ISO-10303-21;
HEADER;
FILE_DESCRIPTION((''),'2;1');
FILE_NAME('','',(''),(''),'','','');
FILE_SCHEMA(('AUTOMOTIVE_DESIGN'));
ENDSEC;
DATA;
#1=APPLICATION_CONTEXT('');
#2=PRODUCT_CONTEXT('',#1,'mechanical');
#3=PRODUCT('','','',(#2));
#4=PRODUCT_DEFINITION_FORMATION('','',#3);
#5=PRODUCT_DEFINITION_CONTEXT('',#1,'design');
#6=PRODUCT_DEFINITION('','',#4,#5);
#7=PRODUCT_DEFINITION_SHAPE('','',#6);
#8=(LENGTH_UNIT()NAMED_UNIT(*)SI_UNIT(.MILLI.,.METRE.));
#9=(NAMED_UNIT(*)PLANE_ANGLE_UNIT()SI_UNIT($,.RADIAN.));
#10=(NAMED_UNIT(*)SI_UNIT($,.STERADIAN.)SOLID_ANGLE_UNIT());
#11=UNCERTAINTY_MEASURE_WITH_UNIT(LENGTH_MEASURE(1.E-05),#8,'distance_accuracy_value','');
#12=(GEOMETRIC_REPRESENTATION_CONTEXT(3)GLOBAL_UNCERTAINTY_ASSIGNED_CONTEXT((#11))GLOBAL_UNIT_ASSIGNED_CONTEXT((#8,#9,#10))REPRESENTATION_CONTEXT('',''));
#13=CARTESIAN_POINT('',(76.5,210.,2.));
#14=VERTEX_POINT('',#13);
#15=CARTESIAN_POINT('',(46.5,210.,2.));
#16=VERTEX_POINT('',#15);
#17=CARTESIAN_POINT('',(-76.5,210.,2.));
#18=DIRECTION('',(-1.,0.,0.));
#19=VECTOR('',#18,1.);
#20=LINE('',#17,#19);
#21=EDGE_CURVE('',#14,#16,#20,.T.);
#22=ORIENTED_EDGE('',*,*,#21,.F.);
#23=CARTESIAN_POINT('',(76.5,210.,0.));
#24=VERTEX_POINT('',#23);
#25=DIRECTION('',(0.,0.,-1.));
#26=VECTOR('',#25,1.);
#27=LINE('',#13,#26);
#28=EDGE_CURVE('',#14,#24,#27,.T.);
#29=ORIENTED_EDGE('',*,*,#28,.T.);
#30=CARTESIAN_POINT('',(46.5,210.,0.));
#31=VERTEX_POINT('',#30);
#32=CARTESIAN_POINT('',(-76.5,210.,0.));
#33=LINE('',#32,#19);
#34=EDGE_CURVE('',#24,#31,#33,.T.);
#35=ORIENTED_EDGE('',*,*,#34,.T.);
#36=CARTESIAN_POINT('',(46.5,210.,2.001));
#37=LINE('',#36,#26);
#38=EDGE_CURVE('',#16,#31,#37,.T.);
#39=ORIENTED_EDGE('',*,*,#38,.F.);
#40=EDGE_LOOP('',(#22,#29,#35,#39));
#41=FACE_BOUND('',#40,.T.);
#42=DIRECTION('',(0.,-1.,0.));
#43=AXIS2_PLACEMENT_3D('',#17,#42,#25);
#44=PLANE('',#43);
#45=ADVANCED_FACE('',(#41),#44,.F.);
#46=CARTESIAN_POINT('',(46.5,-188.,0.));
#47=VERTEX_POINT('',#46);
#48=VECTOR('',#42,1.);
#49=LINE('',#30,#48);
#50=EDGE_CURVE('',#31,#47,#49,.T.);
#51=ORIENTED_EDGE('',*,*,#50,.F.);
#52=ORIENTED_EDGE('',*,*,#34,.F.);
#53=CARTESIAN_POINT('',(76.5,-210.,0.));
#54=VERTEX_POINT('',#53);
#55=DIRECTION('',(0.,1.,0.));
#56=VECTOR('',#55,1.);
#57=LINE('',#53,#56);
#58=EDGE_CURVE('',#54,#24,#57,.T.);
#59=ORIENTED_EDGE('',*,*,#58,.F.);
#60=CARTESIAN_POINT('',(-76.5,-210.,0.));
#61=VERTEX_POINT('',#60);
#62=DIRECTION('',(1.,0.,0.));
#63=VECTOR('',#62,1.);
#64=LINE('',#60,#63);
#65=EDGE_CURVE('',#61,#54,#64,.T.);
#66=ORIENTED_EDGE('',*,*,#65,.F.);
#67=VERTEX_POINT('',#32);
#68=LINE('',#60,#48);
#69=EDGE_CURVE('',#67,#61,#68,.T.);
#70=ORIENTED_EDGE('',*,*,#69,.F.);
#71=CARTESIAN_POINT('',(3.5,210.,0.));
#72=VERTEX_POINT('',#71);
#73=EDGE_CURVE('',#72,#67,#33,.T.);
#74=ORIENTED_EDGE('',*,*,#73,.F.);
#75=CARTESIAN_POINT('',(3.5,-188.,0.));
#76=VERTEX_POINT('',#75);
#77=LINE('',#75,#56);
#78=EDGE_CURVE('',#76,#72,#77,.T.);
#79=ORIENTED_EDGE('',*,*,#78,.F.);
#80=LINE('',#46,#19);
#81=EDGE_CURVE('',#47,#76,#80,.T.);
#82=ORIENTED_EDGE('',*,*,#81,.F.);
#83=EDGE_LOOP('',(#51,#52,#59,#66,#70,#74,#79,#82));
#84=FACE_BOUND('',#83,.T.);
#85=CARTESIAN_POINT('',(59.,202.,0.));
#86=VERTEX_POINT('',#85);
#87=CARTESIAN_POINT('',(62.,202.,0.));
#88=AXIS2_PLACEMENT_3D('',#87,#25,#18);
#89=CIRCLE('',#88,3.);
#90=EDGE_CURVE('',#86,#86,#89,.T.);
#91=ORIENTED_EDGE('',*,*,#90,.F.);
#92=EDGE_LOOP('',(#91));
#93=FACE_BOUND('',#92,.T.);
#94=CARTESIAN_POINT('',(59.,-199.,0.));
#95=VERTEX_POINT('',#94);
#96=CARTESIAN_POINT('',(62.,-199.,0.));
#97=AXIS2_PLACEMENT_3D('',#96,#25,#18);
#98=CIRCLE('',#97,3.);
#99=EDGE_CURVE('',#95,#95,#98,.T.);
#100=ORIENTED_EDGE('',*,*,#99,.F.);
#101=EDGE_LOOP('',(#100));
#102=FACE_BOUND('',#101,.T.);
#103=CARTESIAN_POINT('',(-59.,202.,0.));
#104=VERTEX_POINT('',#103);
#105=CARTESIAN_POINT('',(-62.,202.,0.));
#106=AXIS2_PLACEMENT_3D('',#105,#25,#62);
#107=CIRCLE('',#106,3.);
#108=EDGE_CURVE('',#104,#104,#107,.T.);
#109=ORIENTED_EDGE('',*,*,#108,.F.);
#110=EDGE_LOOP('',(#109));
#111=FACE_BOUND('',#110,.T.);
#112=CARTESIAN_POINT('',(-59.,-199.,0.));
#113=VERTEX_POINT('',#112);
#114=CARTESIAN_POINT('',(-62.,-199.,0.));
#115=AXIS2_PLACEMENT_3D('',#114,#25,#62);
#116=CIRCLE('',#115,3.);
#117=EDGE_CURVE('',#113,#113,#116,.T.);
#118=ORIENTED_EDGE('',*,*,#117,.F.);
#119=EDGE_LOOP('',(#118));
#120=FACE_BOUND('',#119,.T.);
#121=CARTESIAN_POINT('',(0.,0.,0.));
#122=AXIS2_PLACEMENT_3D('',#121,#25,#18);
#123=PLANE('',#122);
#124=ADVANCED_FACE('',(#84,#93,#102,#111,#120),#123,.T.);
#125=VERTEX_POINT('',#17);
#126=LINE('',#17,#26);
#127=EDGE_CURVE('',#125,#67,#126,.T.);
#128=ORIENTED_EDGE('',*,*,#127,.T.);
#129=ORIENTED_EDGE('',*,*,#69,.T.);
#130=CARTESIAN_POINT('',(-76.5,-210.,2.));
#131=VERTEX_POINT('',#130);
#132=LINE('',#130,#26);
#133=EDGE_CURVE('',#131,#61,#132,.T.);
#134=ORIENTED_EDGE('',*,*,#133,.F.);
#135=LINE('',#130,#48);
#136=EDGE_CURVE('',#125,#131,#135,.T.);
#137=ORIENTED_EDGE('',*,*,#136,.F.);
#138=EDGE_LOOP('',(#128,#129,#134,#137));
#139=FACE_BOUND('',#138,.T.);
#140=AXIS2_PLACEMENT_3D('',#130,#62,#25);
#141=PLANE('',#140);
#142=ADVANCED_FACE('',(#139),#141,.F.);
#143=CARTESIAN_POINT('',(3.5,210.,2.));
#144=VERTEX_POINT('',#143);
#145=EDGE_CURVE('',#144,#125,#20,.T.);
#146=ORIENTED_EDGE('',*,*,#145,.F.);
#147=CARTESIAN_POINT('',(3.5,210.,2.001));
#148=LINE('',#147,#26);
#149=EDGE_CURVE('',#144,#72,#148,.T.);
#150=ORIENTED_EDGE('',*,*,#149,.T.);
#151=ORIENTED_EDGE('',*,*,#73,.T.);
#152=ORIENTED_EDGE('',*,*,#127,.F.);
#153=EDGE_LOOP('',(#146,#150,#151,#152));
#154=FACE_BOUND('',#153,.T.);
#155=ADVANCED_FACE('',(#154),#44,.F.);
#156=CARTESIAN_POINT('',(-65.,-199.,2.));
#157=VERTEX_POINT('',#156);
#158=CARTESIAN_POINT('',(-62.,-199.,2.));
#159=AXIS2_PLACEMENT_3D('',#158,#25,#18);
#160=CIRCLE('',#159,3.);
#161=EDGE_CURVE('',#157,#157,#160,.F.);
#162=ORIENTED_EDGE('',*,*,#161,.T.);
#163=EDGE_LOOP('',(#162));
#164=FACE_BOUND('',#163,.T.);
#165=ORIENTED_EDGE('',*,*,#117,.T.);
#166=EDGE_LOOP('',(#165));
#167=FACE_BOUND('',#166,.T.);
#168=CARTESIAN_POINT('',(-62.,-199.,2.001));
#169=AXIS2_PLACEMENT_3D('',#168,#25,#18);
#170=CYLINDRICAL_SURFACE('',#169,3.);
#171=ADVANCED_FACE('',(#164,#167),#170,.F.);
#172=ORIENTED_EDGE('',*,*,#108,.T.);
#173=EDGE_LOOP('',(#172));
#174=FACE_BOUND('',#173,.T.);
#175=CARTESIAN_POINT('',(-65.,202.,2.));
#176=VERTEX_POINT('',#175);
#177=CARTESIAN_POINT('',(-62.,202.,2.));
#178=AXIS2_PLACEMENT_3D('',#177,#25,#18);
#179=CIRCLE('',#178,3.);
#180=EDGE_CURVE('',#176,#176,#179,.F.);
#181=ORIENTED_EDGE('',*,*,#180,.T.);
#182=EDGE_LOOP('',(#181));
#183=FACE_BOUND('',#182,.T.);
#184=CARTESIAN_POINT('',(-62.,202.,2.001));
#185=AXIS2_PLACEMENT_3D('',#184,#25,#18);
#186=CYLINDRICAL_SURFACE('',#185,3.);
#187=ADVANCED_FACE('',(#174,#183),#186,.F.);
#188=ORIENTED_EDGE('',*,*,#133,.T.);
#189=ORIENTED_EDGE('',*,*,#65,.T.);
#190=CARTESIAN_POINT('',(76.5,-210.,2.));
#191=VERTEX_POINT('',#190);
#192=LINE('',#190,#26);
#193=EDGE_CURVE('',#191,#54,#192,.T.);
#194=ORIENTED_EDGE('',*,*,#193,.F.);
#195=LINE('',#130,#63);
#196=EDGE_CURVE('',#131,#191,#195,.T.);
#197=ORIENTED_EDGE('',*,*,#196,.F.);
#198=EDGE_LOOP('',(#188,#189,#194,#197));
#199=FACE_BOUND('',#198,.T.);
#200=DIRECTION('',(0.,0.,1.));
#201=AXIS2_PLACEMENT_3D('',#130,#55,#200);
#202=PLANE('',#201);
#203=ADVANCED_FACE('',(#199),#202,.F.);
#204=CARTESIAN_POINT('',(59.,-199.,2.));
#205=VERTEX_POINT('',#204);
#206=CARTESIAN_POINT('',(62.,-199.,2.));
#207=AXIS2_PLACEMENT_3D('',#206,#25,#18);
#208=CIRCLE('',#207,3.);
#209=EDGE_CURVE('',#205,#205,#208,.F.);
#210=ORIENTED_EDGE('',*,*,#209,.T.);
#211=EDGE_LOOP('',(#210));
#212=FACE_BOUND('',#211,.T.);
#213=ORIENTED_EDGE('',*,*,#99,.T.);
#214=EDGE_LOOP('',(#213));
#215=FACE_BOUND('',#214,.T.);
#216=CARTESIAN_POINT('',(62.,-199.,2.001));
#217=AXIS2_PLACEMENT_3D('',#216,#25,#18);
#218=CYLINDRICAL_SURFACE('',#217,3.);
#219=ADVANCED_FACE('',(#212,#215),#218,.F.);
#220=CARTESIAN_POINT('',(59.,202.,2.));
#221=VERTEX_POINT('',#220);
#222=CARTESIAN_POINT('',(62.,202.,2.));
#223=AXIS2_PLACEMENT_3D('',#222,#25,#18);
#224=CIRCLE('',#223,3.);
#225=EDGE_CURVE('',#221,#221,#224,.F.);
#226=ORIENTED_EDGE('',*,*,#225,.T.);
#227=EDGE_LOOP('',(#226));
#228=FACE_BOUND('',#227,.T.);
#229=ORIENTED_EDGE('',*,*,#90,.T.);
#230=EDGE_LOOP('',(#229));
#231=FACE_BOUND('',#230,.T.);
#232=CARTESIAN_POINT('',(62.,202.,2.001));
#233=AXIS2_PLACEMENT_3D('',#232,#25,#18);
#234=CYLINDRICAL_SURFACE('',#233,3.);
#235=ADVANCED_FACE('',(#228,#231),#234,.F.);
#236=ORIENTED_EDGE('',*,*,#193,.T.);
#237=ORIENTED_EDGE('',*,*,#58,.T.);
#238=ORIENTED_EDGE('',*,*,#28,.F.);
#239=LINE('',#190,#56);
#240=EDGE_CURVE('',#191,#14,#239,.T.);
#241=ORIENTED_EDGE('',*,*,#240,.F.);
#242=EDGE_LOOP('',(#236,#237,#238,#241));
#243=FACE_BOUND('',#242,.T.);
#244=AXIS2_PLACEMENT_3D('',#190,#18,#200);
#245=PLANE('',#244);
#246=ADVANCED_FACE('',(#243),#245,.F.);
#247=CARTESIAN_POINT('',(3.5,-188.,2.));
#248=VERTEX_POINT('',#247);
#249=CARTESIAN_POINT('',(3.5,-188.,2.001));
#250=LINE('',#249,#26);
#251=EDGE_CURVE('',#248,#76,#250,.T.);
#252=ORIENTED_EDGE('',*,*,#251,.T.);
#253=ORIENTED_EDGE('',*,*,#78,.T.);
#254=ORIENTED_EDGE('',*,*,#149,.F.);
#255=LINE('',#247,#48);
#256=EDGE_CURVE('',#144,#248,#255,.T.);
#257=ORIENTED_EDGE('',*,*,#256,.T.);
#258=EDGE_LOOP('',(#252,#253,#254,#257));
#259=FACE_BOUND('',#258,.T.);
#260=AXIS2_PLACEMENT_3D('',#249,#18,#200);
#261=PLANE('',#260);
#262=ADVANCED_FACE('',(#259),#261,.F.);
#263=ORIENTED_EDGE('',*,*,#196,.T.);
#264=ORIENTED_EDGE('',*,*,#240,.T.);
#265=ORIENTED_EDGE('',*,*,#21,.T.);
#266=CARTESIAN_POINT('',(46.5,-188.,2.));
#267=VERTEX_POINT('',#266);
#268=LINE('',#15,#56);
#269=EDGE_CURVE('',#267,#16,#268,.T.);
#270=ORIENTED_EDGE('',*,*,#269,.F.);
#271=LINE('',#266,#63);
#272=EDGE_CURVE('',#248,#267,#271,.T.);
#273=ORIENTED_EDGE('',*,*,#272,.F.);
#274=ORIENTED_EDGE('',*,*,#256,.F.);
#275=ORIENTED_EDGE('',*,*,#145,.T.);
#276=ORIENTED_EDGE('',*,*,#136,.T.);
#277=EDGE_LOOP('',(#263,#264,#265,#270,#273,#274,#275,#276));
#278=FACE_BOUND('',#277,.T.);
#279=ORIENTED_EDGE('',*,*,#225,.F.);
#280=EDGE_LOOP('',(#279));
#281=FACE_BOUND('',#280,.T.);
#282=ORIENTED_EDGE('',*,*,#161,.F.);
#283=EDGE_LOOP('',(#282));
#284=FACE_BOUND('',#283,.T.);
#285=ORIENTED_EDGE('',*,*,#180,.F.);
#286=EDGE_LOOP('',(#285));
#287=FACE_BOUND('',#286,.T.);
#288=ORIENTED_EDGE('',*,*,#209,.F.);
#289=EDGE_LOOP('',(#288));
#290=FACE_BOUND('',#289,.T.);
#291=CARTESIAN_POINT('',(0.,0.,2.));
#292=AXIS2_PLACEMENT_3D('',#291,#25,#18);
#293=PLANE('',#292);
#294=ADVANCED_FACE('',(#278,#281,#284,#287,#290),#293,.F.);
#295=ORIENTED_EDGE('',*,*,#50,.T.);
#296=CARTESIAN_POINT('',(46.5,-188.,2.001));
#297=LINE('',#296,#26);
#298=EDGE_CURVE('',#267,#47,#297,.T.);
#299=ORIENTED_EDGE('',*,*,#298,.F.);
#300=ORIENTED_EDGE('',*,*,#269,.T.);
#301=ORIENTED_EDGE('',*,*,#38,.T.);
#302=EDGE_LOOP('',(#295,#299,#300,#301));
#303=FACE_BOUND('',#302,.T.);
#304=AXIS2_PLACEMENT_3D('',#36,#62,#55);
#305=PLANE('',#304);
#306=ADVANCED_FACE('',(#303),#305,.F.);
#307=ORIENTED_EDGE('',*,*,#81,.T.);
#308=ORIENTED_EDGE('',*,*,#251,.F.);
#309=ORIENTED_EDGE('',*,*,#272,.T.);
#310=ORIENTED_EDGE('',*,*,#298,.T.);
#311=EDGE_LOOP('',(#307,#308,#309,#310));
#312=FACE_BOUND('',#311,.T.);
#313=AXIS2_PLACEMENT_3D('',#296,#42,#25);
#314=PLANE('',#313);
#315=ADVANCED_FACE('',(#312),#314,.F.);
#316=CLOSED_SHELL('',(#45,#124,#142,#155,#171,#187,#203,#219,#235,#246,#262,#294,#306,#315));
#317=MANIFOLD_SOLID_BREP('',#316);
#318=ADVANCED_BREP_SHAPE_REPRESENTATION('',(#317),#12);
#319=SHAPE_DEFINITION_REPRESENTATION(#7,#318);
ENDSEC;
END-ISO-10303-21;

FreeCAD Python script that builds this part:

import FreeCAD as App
import Part
import Sketcher

V = App.Vector

doc = App.newDocument("Part")
body = doc.addObject("PartDesign::Body", "Body")

sketch1 = doc.addObject("Sketcher::SketchObject", "Sketch")
body.addObject(sketch1)
sketch1.AttachmentSupport = (doc.XY_Plane, [""])
sketch1.MapMode = "FlatFace"
sketch1.addGeometry([
    Part.LineSegment(V(-76, 210, 0), V(-76, -210, 0)),
    Part.LineSegment(V(-76, -210, 0), V(76, -210, 0)),
    Part.LineSegment(V(76, -210, 0), V(76, 210, 0)),
    Part.LineSegment(V(76, 210, 0), V(-76, 210, 0)),
], False)
sketch1.addConstraint([
    Sketcher.Constraint("Coincident", 0, 2, 1, 1),
    Sketcher.Constraint("Coincident", 1, 2, 2, 1),
    Sketcher.Constraint("Coincident", 2, 2, 3, 1),
    Sketcher.Constraint("Coincident", 3, 2, 0, 1),
    Sketcher.Constraint("Vertical", 0),
    Sketcher.Constraint("Horizontal", 1),
    Sketcher.Constraint("Vertical", 2),
    Sketcher.Constraint("Horizontal", 3),
    Sketcher.Constraint("Symmetric", 0, 2, 2, 2, -1, 1),
    Sketcher.Constraint("DistanceX", 1, 1, 1, 2, 153.0),
    Sketcher.Constraint("DistanceY", 0, 2, 0, 1, 420.0),
])
pad1 = doc.addObject("PartDesign::Pad", "Pad")
body.addObject(pad1)
pad1.Profile = sketch1
pad1.Length = 2

sketch2 = doc.addObject("Sketcher::SketchObject", "Sketch001")
body.addObject(sketch2)
sketch2.AttachmentSupport = (doc.XY_Plane, [""])
sketch2.MapMode = "FlatFace"
sketch2.addGeometry([
    Part.LineSegment(V(46, 210, 0), V(46, -188, 0)),
    Part.LineSegment(V(46, -188, 0), V(4, -188, 0)),
    Part.LineSegment(V(4, -188, 0), V(4, 210, 0)),
    Part.LineSegment(V(4, 210, 0), V(46, 210, 0)),
], False)
sketch2.addConstraint([
    Sketcher.Constraint("Coincident", 0, 2, 1, 1),
    Sketcher.Constraint("Coincident", 1, 2, 2, 1),
    Sketcher.Constraint("Coincident", 2, 2, 3, 1),
    Sketcher.Constraint("Coincident", 3, 2, 0, 1),
    Sketcher.Constraint("Vertical", 0),
    Sketcher.Constraint("Horizontal", 1),
    Sketcher.Constraint("Vertical", 2),
    Sketcher.Constraint("Horizontal", 3),
    Sketcher.Constraint("DistanceX", 1, 2, 1, 1, 43.0),
    Sketcher.Constraint("DistanceY", 0, 2, 0, 1, 398.0),
    Sketcher.Constraint("DistanceY", 0, 2, -1, 1, 188.0),
    Sketcher.Constraint("DistanceX", -1, 1, 0, 2, 46.5),
])
pocket1 = doc.addObject("PartDesign::Pocket", "Pocket")
body.addObject(pocket1)
pocket1.Profile = sketch2
pocket1.Type = "UpToFirst"
pocket1.Reversed = True

sketch3 = doc.addObject("Sketcher::SketchObject", "Sketch002")
body.addObject(sketch3)
sketch3.AttachmentSupport = (doc.XY_Plane, [""])
sketch3.MapMode = "FlatFace"
sketch3.addGeometry(Part.Circle(V(62, 202, 0), V(0, 0, 1), 3), False)
sketch3.addConstraint([
    Sketcher.Constraint("Diameter", 0, 6.0),
    Sketcher.Constraint("DistanceX", -1, 1, 0, 3, 62.0),
    Sketcher.Constraint("DistanceY", -1, 1, 0, 3, 202.0),
])
pocket2 = doc.addObject("PartDesign::Pocket", "Pocket001")
body.addObject(pocket2)
pocket2.Profile = sketch3
pocket2.Type = "UpToFirst"
pocket2.Reversed = True

sketch4 = doc.addObject("Sketcher::SketchObject", "Sketch003")
body.addObject(sketch4)
sketch4.AttachmentSupport = (doc.XY_Plane, [""])
sketch4.MapMode = "FlatFace"
sketch4.addGeometry(Part.Circle(V(62, -199, 0), V(0, 0, 1), 3), False)
sketch4.addConstraint([
    Sketcher.Constraint("Diameter", 0, 6.0),
    Sketcher.Constraint("DistanceX", -1, 1, 0, 3, 62.0),
    Sketcher.Constraint("DistanceY", 0, 3, -1, 1, 199.0),
])
pocket3 = doc.addObject("PartDesign::Pocket", "Pocket002")
body.addObject(pocket3)
pocket3.Profile = sketch4
pocket3.Type = "UpToFirst"
pocket3.Reversed = True

sketch5 = doc.addObject("Sketcher::SketchObject", "Sketch004")
body.addObject(sketch5)
sketch5.AttachmentSupport = (doc.XY_Plane, [""])
sketch5.MapMode = "FlatFace"
sketch5.addGeometry(Part.Circle(V(-62, 202, 0), V(0, 0, 1), 3), False)
sketch5.addConstraint([
    Sketcher.Constraint("Diameter", 0, 6.0),
    Sketcher.Constraint("DistanceX", 0, 3, -1, 1, 62.0),
    Sketcher.Constraint("DistanceY", -1, 1, 0, 3, 202.0),
])
pocket4 = doc.addObject("PartDesign::Pocket", "Pocket003")
body.addObject(pocket4)
pocket4.Profile = sketch5
pocket4.Type = "UpToFirst"
pocket4.Reversed = True

sketch6 = doc.addObject("Sketcher::SketchObject", "Sketch005")
body.addObject(sketch6)
sketch6.AttachmentSupport = (doc.XY_Plane, [""])
sketch6.MapMode = "FlatFace"
sketch6.addGeometry(Part.Circle(V(-62, -199, 0), V(0, 0, 1), 3), False)
sketch6.addConstraint([
    Sketcher.Constraint("Diameter", 0, 6.0),
    Sketcher.Constraint("DistanceX", 0, 3, -1, 1, 62.0),
    Sketcher.Constraint("DistanceY", 0, 3, -1, 1, 199.0),
])
pocket5 = doc.addObject("PartDesign::Pocket", "Pocket004")
body.addObject(pocket5)
pocket5.Profile = sketch6
pocket5.Type = "UpToFirst"
pocket5.Reversed = True

doc.recompute()
